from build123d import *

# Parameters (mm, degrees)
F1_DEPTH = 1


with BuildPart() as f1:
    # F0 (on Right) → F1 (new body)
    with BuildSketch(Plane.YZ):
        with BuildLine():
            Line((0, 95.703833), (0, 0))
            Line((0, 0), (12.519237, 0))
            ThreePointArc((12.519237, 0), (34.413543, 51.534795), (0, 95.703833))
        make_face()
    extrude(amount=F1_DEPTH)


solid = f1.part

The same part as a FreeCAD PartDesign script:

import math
import FreeCAD as App
import Part
import Sketcher

doc = App.newDocument("Part")
body = doc.addObject("PartDesign::Body", "Body")

# Sketch on YZ plane
sketch1 = body.newObject("Sketcher::SketchObject", "Sketch")
sketch1.AttachmentSupport = (doc.getObject("YZ_Plane"), [""])
sketch1.MapMode = "FlatFace"
sketch1.addGeometry(Part.LineSegment(App.Vector(0, 96, 0), App.Vector(0, 0, 0)), False)
sketch1.addGeometry(Part.LineSegment(App.Vector(0, 0, 0), App.Vector(13, 0, 0)), False)
sketch1.addGeometry(Part.ArcOfCircle(Part.Circle(App.Vector(-20, 44, 0), App.Vector(0, 0, 1), 55), math.radians(-53), math.radians(68)), False)
sketch1.addConstraint(Sketcher.Constraint("Coincident", 0, 2, 1, 1))
sketch1.addConstraint(Sketcher.Constraint("Coincident", 1, 2, 2, 1))
sketch1.addConstraint(Sketcher.Constraint("Coincident", 2, 2, 0, 1))
sketch1.addConstraint(Sketcher.Constraint("Vertical", 0))
sketch1.addConstraint(Sketcher.Constraint("Horizontal", 1))
sketch1.addConstraint(Sketcher.Constraint("Coincident", 0, 2, -1, 1))
sketch1.addConstraint(Sketcher.Constraint("Radius", 2, 55.20919))
sketch1.addConstraint(Sketcher.Constraint("DistanceX", 1, 1, 1, 2, 12.519237))
sketch1.addConstraint(Sketcher.Constraint("DistanceY", 0, 2, 0, 1, 95.703833))
pad1 = body.newObject("PartDesign::Pad", "Pad")
pad1.Profile = sketch1
pad1.Length = 1

doc.recompute()
